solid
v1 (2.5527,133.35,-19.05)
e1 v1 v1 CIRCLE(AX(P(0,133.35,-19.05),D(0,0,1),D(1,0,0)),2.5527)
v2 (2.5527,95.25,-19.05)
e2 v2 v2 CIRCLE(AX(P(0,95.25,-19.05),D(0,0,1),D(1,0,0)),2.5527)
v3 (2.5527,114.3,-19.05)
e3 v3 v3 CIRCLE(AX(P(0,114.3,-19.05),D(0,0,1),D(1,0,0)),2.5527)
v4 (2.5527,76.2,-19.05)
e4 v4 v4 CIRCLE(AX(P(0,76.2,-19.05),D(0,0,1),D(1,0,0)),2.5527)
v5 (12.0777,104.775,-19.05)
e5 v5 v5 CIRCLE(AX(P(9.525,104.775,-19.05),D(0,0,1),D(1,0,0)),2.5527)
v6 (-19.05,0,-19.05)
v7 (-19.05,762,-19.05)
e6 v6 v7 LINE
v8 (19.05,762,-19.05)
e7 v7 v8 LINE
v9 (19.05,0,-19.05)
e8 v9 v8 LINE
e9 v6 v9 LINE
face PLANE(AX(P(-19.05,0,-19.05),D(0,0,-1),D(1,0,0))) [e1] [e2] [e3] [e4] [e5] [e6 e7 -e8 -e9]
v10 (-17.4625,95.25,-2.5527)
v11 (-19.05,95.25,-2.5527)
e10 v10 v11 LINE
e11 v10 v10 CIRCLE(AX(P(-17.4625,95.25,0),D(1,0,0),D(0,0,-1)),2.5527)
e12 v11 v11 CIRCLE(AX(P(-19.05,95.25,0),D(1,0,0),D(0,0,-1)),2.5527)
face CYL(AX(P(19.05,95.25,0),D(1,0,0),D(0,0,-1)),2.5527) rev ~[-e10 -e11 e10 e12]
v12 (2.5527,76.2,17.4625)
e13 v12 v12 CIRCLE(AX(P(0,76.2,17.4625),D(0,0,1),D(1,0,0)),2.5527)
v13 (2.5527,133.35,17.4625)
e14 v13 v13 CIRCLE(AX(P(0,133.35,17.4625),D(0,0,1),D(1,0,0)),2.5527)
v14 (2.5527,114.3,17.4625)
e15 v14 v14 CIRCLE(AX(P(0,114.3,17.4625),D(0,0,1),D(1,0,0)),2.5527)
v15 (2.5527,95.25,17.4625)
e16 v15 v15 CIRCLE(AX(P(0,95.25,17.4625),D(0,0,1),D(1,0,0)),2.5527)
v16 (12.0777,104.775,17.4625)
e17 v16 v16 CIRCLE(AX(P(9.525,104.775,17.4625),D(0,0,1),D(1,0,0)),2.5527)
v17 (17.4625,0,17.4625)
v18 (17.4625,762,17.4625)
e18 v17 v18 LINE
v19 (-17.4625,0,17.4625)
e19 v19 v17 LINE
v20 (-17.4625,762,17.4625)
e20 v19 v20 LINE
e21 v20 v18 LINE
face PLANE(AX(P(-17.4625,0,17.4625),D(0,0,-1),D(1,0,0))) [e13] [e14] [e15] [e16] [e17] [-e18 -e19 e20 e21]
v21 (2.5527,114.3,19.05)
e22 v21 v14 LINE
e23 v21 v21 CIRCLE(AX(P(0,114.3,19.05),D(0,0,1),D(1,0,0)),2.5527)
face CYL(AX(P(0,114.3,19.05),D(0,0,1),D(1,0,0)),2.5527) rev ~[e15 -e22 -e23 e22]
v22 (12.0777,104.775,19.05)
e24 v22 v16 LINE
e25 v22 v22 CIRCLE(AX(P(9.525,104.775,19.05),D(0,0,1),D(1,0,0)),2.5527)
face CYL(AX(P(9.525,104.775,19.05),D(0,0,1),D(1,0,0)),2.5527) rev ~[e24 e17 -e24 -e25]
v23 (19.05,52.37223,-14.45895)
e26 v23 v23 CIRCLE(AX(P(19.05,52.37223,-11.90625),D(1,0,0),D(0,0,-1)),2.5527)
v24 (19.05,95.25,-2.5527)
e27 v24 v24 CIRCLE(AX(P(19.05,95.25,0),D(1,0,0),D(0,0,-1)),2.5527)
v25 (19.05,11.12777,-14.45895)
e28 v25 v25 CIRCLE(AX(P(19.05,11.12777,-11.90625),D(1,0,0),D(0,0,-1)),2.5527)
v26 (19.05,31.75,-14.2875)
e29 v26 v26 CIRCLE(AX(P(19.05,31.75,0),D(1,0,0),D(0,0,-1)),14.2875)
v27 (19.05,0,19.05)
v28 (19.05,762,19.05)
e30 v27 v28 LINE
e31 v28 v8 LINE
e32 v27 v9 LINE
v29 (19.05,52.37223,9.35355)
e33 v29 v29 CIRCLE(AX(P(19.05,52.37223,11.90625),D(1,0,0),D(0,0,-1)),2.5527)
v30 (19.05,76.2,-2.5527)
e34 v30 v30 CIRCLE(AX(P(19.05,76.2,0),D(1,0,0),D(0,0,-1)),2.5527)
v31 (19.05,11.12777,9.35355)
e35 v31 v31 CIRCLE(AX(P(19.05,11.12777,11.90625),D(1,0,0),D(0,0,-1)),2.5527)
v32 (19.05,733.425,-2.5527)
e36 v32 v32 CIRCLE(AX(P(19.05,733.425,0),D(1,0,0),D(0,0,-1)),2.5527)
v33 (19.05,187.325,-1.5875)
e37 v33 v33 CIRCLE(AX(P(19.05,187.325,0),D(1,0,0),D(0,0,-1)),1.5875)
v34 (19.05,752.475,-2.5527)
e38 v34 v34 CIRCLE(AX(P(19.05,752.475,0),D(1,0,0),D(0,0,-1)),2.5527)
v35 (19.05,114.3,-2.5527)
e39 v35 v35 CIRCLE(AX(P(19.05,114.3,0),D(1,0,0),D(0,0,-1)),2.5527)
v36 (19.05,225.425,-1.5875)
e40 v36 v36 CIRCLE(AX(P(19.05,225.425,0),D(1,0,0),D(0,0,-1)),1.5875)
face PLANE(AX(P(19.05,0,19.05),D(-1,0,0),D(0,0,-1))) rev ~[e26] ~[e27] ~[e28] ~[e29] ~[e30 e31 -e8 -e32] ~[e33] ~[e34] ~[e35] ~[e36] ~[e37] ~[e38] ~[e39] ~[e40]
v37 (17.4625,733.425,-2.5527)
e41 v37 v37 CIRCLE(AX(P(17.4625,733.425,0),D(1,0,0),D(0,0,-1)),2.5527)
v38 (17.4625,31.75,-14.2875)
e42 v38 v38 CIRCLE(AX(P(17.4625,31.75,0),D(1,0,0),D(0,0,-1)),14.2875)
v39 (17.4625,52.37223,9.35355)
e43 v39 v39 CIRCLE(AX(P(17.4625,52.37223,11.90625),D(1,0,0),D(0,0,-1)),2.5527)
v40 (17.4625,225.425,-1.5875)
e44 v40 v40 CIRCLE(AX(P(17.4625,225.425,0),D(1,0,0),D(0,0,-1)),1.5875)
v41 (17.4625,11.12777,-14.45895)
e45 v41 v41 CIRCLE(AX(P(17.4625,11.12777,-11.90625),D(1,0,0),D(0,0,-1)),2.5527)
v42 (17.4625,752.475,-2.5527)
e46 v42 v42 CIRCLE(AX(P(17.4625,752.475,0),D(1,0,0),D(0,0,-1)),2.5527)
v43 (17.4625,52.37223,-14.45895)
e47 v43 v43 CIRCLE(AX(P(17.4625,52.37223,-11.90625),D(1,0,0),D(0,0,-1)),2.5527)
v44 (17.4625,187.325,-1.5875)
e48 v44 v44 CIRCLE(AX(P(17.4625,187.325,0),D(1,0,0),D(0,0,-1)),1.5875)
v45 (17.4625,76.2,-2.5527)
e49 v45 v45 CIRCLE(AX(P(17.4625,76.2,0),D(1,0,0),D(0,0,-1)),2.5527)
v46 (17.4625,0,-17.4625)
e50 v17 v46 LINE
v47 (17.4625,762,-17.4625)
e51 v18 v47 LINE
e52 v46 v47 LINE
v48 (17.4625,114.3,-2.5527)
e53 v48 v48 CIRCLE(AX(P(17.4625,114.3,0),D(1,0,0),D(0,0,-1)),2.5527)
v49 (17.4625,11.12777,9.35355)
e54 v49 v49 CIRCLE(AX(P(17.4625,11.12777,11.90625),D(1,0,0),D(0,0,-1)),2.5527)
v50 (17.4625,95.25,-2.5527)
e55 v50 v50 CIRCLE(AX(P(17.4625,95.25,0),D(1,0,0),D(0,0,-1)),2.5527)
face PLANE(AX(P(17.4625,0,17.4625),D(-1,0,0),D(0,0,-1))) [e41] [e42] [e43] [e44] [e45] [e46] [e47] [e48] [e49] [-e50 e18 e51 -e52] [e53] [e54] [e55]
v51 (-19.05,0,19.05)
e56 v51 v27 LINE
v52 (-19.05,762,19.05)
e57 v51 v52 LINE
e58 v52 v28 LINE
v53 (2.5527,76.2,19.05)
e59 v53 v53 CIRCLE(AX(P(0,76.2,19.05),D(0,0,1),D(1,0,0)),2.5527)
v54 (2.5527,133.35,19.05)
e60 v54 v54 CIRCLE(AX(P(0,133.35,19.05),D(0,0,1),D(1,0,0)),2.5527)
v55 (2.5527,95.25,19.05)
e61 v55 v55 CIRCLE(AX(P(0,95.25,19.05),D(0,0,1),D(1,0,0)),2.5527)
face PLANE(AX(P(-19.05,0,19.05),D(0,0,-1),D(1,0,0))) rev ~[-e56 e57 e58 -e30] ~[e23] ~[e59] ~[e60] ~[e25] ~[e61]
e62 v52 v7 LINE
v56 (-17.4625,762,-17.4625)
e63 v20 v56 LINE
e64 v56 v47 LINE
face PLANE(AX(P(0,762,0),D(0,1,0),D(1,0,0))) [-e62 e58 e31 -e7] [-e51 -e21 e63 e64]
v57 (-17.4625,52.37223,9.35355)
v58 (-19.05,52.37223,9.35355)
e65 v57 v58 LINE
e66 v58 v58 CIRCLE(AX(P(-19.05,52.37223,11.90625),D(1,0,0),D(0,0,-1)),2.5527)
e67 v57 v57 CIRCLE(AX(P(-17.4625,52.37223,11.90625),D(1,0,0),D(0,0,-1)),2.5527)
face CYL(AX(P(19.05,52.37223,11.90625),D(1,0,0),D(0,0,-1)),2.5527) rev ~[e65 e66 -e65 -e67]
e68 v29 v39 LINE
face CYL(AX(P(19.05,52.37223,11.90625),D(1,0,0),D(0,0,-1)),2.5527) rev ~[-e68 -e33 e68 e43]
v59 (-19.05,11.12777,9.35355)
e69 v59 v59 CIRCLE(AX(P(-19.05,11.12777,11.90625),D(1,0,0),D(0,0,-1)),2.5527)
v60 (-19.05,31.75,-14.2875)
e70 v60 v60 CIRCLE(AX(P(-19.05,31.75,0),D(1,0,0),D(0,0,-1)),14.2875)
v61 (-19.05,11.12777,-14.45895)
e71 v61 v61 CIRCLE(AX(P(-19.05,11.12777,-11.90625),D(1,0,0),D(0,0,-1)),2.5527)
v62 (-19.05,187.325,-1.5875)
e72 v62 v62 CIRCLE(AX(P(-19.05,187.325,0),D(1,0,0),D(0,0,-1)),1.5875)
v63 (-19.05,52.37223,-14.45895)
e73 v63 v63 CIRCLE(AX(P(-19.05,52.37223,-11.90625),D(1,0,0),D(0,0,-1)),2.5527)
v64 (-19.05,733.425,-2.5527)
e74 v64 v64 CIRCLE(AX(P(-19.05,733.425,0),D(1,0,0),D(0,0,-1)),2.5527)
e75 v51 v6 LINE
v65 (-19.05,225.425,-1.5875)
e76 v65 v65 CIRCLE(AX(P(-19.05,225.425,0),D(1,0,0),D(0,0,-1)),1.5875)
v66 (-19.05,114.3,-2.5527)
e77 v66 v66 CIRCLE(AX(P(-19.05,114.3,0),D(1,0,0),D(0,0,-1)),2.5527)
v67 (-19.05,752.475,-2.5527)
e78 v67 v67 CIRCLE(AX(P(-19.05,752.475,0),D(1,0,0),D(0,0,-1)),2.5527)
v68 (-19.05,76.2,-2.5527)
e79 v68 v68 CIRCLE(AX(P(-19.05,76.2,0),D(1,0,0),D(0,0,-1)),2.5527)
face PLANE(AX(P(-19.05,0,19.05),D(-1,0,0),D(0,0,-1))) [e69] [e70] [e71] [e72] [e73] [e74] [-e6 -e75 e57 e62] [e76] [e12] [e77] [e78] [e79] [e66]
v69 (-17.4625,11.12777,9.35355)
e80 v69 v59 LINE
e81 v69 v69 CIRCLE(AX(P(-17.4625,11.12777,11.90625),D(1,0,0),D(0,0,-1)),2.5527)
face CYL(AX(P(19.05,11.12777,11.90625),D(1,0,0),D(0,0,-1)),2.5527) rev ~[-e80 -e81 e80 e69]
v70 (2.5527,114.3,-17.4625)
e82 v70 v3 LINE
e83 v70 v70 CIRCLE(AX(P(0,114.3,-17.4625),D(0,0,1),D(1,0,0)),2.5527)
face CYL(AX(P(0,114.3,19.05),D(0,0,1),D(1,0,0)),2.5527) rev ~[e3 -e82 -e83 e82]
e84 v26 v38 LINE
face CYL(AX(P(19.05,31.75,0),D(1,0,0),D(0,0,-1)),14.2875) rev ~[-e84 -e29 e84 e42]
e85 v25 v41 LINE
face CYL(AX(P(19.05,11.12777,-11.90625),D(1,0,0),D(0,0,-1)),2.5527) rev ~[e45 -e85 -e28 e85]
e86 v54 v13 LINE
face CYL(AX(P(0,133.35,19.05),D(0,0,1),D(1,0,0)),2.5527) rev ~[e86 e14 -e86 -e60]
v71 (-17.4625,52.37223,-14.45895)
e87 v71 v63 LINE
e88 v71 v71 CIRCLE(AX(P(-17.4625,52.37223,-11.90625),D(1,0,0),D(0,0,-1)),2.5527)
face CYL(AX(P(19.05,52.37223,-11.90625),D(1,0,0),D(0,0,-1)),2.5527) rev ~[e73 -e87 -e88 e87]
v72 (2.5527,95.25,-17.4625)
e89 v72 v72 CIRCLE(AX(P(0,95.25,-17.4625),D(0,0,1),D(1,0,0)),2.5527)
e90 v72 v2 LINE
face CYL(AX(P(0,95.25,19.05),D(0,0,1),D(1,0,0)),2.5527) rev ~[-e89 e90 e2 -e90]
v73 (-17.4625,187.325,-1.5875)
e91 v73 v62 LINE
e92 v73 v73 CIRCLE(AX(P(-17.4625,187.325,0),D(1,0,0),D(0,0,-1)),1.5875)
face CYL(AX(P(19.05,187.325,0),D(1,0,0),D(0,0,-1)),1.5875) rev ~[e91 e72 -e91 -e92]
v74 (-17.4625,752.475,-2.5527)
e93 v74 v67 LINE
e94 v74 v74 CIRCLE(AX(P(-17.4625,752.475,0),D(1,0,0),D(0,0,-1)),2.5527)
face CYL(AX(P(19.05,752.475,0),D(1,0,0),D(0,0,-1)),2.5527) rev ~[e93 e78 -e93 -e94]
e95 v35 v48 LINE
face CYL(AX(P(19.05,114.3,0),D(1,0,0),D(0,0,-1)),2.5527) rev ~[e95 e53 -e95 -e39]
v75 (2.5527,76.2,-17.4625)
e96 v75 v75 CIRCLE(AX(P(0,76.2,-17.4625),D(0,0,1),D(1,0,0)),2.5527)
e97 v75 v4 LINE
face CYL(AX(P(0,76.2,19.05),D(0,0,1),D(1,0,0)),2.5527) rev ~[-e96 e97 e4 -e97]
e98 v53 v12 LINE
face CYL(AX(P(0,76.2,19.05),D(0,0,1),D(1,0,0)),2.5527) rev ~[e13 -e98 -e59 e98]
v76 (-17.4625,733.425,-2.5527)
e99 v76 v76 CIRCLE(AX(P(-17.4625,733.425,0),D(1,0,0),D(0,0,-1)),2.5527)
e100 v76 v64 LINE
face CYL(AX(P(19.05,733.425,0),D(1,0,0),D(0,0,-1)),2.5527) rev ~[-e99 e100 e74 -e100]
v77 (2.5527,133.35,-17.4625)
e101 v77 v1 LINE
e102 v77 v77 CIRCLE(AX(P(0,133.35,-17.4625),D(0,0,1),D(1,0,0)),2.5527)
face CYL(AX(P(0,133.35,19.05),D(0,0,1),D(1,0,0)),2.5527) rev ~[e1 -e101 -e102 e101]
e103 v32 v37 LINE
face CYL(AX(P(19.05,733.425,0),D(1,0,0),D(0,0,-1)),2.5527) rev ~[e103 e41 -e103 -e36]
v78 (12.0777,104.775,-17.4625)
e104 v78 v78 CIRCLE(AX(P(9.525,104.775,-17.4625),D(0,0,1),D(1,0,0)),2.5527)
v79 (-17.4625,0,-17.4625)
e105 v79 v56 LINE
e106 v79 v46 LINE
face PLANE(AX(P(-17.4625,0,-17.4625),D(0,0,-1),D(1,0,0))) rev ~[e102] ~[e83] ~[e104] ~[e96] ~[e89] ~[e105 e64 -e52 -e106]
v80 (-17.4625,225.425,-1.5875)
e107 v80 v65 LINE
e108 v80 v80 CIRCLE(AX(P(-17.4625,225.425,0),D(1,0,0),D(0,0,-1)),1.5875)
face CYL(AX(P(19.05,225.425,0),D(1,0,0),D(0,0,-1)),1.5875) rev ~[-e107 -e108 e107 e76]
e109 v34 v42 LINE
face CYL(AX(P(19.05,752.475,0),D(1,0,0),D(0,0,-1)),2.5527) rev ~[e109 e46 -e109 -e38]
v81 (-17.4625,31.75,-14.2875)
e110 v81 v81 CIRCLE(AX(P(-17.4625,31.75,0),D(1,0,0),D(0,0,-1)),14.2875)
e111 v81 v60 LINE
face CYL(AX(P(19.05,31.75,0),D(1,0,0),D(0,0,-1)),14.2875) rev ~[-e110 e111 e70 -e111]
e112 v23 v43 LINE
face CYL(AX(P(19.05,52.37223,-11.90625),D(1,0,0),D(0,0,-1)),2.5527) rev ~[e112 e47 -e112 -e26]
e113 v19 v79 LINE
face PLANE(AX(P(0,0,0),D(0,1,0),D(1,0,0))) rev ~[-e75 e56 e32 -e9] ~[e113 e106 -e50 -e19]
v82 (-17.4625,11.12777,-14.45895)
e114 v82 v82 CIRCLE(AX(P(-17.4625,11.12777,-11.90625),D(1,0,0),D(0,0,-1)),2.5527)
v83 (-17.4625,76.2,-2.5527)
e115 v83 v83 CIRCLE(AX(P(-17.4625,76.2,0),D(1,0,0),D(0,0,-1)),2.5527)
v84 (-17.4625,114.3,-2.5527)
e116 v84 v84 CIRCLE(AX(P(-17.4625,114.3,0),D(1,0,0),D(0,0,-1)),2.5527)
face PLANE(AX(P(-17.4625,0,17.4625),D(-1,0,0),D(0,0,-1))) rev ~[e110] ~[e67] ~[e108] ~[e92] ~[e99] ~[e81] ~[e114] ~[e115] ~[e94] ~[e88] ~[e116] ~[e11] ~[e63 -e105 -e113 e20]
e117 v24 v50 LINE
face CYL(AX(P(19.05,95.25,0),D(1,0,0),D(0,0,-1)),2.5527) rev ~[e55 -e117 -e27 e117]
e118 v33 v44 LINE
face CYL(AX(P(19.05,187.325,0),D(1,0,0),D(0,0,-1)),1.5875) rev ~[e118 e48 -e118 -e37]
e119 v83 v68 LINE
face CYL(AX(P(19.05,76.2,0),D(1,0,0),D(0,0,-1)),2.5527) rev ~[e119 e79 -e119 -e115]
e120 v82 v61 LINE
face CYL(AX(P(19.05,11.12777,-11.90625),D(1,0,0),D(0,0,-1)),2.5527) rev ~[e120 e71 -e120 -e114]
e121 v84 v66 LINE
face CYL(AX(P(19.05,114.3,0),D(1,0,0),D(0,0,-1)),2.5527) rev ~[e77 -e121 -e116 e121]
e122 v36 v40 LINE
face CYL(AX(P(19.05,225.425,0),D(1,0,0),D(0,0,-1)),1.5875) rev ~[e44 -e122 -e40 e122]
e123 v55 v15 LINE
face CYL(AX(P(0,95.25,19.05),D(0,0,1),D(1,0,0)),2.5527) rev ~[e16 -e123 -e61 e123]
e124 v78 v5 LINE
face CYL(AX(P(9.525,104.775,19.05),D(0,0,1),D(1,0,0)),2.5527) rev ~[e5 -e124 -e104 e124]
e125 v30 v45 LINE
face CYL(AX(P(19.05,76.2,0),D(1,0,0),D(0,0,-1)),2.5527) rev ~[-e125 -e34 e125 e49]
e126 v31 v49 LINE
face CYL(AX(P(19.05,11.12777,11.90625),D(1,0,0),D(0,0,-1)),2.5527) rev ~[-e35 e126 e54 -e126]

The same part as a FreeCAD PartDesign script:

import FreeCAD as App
import Part
import Sketcher
from FreeCAD import Vector
Q = App.Units.Quantity

doc = App.newDocument("Part")
params = doc.addObject("Spreadsheet::Sheet", "Params")
for row, (alias, value) in enumerate([
    ("sketch1_width", "1.5 in"),
    ("sketch1_width2", "1.375 in"),
    ("pad1_length", "30 in"),
    ("sketch2_diameter", "0.201 in"),
    ("sketch3_diameter", "0.201 in"),
    ("sketch3_diameter2", "0.125 in"),
    ("sketch4_diameter", "1.125 in"),
    ("sketch4_diameter2", "0.201 in"),
], start=1):
    params.set(f"A{row}", alias)
    params.set(f"B{row}", "=" + value)
    params.setAlias(f"B{row}", alias)

body = doc.addObject("PartDesign::Body", "Body")

# Sketch on XZ plane
sketch1 = body.newObject("Sketcher::SketchObject", "Sketch")
sketch1.AttachmentSupport = (doc.getObject("XZ_Plane"), [""])
sketch1.MapMode = "FlatFace"
sketch1.addGeometry([
    Part.LineSegment(Vector(-19, -19, 0), Vector(-19, 19, 0)),  # 0
    Part.LineSegment(Vector(-19, 19, 0), Vector(19, 19, 0)),  # 1
    Part.LineSegment(Vector(19, 19, 0), Vector(19, -19, 0)),  # 2
    Part.LineSegment(Vector(19, -19, 0), Vector(-19, -19, 0)),  # 3
    Part.LineSegment(Vector(17, 17, 0), Vector(-17, 17, 0)),  # 4
    Part.LineSegment(Vector(-17, 17, 0), Vector(-17, -17, 0)),  # 5
    Part.LineSegment(Vector(-17, -17, 0), Vector(17, -17, 0)),  # 6
    Part.LineSegment(Vector(17, -17, 0), Vector(17, 17, 0)),  # 7
], False)
sketch1.addConstraint([
    Sketcher.Constraint("Coincident", 0, 2, 1, 1),
    Sketcher.Constraint("Coincident", 1, 2, 2, 1),
    Sketcher.Constraint("Coincident", 2, 2, 3, 1),
    Sketcher.Constraint("Coincident", 3, 2, 0, 1),
    Sketcher.Constraint("Coincident", 4, 2, 5, 1),
    Sketcher.Constraint("Coincident", 5, 2, 6, 1),
    Sketcher.Constraint("Coincident", 6, 2, 7, 1),
    Sketcher.Constraint("Coincident", 7, 2, 4, 1),
    Sketcher.Constraint("Vertical", 0),
    Sketcher.Constraint("Horizontal", 1),
    Sketcher.Constraint("Vertical", 2),
    Sketcher.Constraint("Horizontal", 3),
    Sketcher.Constraint("Horizontal", 4),
    Sketcher.Constraint("Vertical", 5),
    Sketcher.Constraint("Horizontal", 6),
    Sketcher.Constraint("Vertical", 7),
    Sketcher.Constraint("Symmetric", 0, 2, 2, 2, -1, 1),
    Sketcher.Constraint("Symmetric", 4, 2, 6, 2, -1, 1),
    Sketcher.Constraint("Equal", 3, 0),
    Sketcher.Constraint("Equal", 6, 5),
    Sketcher.Constraint("DistanceX", 1, 1, 1, 2, Q("1.5 in")),
    Sketcher.Constraint("DistanceX", 4, 2, 4, 1, Q("1.375 in")),
])
sketch1.setExpression("Constraints[20]", "Params.sketch1_width")
sketch1.setExpression("Constraints[21]", "Params.sketch1_width2")
pad1 = body.newObject("PartDesign::Pad", "Pad")
pad1.Profile = sketch1
pad1.setExpression("Length", "Params.pad1_length")
pad1.Reversed = True

# Sketch on XY plane
sketch2 = body.newObject("Sketcher::SketchObject", "Sketch001")
sketch2.AttachmentSupport = (doc.getObject("XY_Plane"), [""])
sketch2.MapMode = "FlatFace"
sketch2.AttachmentOffset = App.Placement(Vector(0, 0, 0.75 * 25.4), App.Rotation())
sketch2.addGeometry([
    Part.Circle(Vector(0, 76.2, 0), Vector(0, 0, 1), 2.6),  # 0
    Part.Circle(Vector(0, 95.2, 0), Vector(0, 0, 1), 2.6),  # 1
    Part.Circle(Vector(0, 114.3, 0), Vector(0, 0, 1), 2.6),  # 2
    Part.Circle(Vector(0, 133.3, 0), Vector(0, 0, 1), 2.6),  # 3
    Part.Circle(Vector(9.5, 104.8, 0), Vector(0, 0, 1), 2.6),  # 4
], False)
sketch2.addConstraint([
    Sketcher.Constraint("Equal", 0, 1),
    Sketcher.Constraint("Equal", 1, 2),
    Sketcher.Constraint("Equal", 2, 3),
    Sketcher.Constraint("Equal", 3, 4),
    Sketcher.Constraint("PointOnObject", 0, 3, -2),
    Sketcher.Constraint("PointOnObject", 1, 3, -2),
    Sketcher.Constraint("PointOnObject", 2, 3, -2),
    Sketcher.Constraint("PointOnObject", 3, 3, -2),
    Sketcher.Constraint("Diameter", 0, Q("0.201 in")),
    Sketcher.Constraint("DistanceY", -1, 1, 0, 3, Q("3 in")),
    Sketcher.Constraint("DistanceY", -1, 1, 2, 3, Q("4.5 in")),
    Sketcher.Constraint("DistanceY", 1, 3, 3, 3, Q("1.5 in")),
    Sketcher.Constraint("DistanceY", -1, 1, 1, 3, Q("3.75 in")),
    Sketcher.Constraint("DistanceX", -1, 1, 4, 3, Q("0.375 in")),
    Sketcher.Constraint("DistanceY", -1, 1, 4, 3, Q("4.125 in")),
])
sketch2.setExpression("Constraints[8]", "Params.sketch2_diameter")
pocket1 = body.newObject("PartDesign::Pocket", "Pocket")
pocket1.Profile = sketch2
pocket1.Type = "ThroughAll"

# Sketch on YZ plane
sketch3 = body.newObject("Sketcher::SketchObject", "Sketch002")
sketch3.AttachmentSupport = (doc.getObject("YZ_Plane"), [""])
sketch3.MapMode = "FlatFace"
sketch3.AttachmentOffset = App.Placement(Vector(0, 0, 0.75 * 25.4), App.Rotation())
sketch3.addGeometry([
    Part.Circle(Vector(76.2, 0, 0), Vector(0, 0, 1), 2.6),  # 0
    Part.Circle(Vector(95.2, 0, 0), Vector(0, 0, 1), 2.6),  # 1
    Part.Circle(Vector(114.3, 0, 0), Vector(0, 0, 1), 2.6),  # 2
    Part.Circle(Vector(225.4, 0, 0), Vector(0, 0, 1), 1.6),  # 3
    Part.Circle(Vector(187.3, 0, 0), Vector(0, 0, 1), 1.6),  # 4
    Part.Circle(Vector(752.5, 0, 0), Vector(0, 0, 1), 2.6),  # 5
    Part.Circle(Vector(733.4, 0, 0), Vector(0, 0, 1), 2.6),  # 6
], False)
sketch3.addConstraint([
    Sketcher.Constraint("Equal", 0, 1),
    Sketcher.Constraint("Equal", 1, 2),
    Sketcher.Constraint("Equal", 3, 4),
    Sketcher.Constraint("Equal", 2, 5),
    Sketcher.Constraint("Equal", 5, 6),
    Sketcher.Constraint("PointOnObject", 0, 3, -1),
    Sketcher.Constraint("PointOnObject", 1, 3, -1),
    Sketcher.Constraint("PointOnObject", 2, 3, -1),
    Sketcher.Constraint("PointOnObject", 3, 3, -1),
    Sketcher.Constraint("PointOnObject", 4, 3, -1),
    Sketcher.Constraint("PointOnObject", 5, 3, -1),
    Sketcher.Constraint("PointOnObject", 6, 3, -1),
    Sketcher.Constraint("Diameter", 0, Q("0.201 in")),
    Sketcher.Constraint("Diameter", 3, Q("0.125 in")),
    Sketcher.Constraint("DistanceX", -1, 1, 0, 3, Q("3 in")),
    Sketcher.Constraint("DistanceX", 3, 3, 6, 3, Q("20 in")),
    Sketcher.Constraint("DistanceX", -1, 1, 2, 3, Q("4.5 in")),
    Sketcher.Constraint("DistanceX", 4, 3, 3, 3, Q("1.5 in")),
    Sketcher.Constraint("DistanceX", -1, 1, 1, 3, Q("3.75 in")),
    Sketcher.Constraint("DistanceX", 3, 3, 5, 3, Q("20.75 in")),
    Sketcher.Constraint("DistanceX", -1, 1, 3, 3, Q("8.875 in")),
])
sketch3.setExpression("Constraints[12]", "Params.sketch3_diameter")
sketch3.setExpression("Constraints[13]", "Params.sketch3_diameter2")
pocket2 = body.newObject("PartDesign::Pocket", "Pocket001")
pocket2.Profile = sketch3
pocket2.Type = "ThroughAll"

# Sketch on YZ plane
sketch4 = body.newObject("Sketcher::SketchObject", "Sketch003")
sketch4.AttachmentSupport = (doc.getObject("YZ_Plane"), [""])
sketch4.MapMode = "FlatFace"
sketch4.AttachmentOffset = App.Placement(Vector(0, 0, 0.75 * 25.4), App.Rotation())
sketch4.addGeometry([
    Part.Circle(Vector(31.8, 0, 0), Vector(0, 0, 1), 14.3),  # 0
    Part.Circle(Vector(52.4, 11.9, 0), Vector(0, 0, 1), 2.6),  # 1
    Part.Circle(Vector(52.4, -11.9, 0), Vector(0, 0, 1), 2.6),  # 2
    Part.Circle(Vector(11.1, -11.9, 0), Vector(0, 0, 1), 2.6),  # 3
    Part.Circle(Vector(11.1, 11.9, 0), Vector(0, 0, 1), 2.6),  # 4
], False)
sketch4.addConstraint([
    Sketcher.Constraint("Equal", 1, 2),
    Sketcher.Constraint("Equal", 2, 3),
    Sketcher.Constraint("Equal", 3, 4),
    Sketcher.Constraint("Symmetric", 1, 3, 2, 3, -1),
    Sketcher.Constraint("Symmetric", 3, 3, 4, 3, -1),
    Sketcher.Constraint("PointOnObject", 0, 3, -1),
    Sketcher.Constraint("Horizontal", 2, 3, 3, 3),
    Sketcher.Constraint("Diameter", 0, Q("1.125 in")),
    Sketcher.Constraint("Diameter", 1, Q("0.201 in")),
    Sketcher.Constraint("DistanceX", -1, 1, 0, 3, Q("1.25 in")),
    Sketcher.Constraint("DistanceY", -1, 1, 1, 3, Q("0.46875 in")),
    Sketcher.Constraint("DistanceX", -1, 1, 1, 3, Q("52.37223 mm")),
    Sketcher.Constraint("DistanceX", -1, 1, 3, 3, Q("11.12777 mm")),
])
sketch4.setExpression("Constraints[7]", "Params.sketch4_diameter")
sketch4.setExpression("Constraints[8]", "Params.sketch4_diameter2")
pocket3 = body.newObject("PartDesign::Pocket", "Pocket002")
pocket3.Profile = sketch4
pocket3.Type = "ThroughAll"

doc.recompute()
